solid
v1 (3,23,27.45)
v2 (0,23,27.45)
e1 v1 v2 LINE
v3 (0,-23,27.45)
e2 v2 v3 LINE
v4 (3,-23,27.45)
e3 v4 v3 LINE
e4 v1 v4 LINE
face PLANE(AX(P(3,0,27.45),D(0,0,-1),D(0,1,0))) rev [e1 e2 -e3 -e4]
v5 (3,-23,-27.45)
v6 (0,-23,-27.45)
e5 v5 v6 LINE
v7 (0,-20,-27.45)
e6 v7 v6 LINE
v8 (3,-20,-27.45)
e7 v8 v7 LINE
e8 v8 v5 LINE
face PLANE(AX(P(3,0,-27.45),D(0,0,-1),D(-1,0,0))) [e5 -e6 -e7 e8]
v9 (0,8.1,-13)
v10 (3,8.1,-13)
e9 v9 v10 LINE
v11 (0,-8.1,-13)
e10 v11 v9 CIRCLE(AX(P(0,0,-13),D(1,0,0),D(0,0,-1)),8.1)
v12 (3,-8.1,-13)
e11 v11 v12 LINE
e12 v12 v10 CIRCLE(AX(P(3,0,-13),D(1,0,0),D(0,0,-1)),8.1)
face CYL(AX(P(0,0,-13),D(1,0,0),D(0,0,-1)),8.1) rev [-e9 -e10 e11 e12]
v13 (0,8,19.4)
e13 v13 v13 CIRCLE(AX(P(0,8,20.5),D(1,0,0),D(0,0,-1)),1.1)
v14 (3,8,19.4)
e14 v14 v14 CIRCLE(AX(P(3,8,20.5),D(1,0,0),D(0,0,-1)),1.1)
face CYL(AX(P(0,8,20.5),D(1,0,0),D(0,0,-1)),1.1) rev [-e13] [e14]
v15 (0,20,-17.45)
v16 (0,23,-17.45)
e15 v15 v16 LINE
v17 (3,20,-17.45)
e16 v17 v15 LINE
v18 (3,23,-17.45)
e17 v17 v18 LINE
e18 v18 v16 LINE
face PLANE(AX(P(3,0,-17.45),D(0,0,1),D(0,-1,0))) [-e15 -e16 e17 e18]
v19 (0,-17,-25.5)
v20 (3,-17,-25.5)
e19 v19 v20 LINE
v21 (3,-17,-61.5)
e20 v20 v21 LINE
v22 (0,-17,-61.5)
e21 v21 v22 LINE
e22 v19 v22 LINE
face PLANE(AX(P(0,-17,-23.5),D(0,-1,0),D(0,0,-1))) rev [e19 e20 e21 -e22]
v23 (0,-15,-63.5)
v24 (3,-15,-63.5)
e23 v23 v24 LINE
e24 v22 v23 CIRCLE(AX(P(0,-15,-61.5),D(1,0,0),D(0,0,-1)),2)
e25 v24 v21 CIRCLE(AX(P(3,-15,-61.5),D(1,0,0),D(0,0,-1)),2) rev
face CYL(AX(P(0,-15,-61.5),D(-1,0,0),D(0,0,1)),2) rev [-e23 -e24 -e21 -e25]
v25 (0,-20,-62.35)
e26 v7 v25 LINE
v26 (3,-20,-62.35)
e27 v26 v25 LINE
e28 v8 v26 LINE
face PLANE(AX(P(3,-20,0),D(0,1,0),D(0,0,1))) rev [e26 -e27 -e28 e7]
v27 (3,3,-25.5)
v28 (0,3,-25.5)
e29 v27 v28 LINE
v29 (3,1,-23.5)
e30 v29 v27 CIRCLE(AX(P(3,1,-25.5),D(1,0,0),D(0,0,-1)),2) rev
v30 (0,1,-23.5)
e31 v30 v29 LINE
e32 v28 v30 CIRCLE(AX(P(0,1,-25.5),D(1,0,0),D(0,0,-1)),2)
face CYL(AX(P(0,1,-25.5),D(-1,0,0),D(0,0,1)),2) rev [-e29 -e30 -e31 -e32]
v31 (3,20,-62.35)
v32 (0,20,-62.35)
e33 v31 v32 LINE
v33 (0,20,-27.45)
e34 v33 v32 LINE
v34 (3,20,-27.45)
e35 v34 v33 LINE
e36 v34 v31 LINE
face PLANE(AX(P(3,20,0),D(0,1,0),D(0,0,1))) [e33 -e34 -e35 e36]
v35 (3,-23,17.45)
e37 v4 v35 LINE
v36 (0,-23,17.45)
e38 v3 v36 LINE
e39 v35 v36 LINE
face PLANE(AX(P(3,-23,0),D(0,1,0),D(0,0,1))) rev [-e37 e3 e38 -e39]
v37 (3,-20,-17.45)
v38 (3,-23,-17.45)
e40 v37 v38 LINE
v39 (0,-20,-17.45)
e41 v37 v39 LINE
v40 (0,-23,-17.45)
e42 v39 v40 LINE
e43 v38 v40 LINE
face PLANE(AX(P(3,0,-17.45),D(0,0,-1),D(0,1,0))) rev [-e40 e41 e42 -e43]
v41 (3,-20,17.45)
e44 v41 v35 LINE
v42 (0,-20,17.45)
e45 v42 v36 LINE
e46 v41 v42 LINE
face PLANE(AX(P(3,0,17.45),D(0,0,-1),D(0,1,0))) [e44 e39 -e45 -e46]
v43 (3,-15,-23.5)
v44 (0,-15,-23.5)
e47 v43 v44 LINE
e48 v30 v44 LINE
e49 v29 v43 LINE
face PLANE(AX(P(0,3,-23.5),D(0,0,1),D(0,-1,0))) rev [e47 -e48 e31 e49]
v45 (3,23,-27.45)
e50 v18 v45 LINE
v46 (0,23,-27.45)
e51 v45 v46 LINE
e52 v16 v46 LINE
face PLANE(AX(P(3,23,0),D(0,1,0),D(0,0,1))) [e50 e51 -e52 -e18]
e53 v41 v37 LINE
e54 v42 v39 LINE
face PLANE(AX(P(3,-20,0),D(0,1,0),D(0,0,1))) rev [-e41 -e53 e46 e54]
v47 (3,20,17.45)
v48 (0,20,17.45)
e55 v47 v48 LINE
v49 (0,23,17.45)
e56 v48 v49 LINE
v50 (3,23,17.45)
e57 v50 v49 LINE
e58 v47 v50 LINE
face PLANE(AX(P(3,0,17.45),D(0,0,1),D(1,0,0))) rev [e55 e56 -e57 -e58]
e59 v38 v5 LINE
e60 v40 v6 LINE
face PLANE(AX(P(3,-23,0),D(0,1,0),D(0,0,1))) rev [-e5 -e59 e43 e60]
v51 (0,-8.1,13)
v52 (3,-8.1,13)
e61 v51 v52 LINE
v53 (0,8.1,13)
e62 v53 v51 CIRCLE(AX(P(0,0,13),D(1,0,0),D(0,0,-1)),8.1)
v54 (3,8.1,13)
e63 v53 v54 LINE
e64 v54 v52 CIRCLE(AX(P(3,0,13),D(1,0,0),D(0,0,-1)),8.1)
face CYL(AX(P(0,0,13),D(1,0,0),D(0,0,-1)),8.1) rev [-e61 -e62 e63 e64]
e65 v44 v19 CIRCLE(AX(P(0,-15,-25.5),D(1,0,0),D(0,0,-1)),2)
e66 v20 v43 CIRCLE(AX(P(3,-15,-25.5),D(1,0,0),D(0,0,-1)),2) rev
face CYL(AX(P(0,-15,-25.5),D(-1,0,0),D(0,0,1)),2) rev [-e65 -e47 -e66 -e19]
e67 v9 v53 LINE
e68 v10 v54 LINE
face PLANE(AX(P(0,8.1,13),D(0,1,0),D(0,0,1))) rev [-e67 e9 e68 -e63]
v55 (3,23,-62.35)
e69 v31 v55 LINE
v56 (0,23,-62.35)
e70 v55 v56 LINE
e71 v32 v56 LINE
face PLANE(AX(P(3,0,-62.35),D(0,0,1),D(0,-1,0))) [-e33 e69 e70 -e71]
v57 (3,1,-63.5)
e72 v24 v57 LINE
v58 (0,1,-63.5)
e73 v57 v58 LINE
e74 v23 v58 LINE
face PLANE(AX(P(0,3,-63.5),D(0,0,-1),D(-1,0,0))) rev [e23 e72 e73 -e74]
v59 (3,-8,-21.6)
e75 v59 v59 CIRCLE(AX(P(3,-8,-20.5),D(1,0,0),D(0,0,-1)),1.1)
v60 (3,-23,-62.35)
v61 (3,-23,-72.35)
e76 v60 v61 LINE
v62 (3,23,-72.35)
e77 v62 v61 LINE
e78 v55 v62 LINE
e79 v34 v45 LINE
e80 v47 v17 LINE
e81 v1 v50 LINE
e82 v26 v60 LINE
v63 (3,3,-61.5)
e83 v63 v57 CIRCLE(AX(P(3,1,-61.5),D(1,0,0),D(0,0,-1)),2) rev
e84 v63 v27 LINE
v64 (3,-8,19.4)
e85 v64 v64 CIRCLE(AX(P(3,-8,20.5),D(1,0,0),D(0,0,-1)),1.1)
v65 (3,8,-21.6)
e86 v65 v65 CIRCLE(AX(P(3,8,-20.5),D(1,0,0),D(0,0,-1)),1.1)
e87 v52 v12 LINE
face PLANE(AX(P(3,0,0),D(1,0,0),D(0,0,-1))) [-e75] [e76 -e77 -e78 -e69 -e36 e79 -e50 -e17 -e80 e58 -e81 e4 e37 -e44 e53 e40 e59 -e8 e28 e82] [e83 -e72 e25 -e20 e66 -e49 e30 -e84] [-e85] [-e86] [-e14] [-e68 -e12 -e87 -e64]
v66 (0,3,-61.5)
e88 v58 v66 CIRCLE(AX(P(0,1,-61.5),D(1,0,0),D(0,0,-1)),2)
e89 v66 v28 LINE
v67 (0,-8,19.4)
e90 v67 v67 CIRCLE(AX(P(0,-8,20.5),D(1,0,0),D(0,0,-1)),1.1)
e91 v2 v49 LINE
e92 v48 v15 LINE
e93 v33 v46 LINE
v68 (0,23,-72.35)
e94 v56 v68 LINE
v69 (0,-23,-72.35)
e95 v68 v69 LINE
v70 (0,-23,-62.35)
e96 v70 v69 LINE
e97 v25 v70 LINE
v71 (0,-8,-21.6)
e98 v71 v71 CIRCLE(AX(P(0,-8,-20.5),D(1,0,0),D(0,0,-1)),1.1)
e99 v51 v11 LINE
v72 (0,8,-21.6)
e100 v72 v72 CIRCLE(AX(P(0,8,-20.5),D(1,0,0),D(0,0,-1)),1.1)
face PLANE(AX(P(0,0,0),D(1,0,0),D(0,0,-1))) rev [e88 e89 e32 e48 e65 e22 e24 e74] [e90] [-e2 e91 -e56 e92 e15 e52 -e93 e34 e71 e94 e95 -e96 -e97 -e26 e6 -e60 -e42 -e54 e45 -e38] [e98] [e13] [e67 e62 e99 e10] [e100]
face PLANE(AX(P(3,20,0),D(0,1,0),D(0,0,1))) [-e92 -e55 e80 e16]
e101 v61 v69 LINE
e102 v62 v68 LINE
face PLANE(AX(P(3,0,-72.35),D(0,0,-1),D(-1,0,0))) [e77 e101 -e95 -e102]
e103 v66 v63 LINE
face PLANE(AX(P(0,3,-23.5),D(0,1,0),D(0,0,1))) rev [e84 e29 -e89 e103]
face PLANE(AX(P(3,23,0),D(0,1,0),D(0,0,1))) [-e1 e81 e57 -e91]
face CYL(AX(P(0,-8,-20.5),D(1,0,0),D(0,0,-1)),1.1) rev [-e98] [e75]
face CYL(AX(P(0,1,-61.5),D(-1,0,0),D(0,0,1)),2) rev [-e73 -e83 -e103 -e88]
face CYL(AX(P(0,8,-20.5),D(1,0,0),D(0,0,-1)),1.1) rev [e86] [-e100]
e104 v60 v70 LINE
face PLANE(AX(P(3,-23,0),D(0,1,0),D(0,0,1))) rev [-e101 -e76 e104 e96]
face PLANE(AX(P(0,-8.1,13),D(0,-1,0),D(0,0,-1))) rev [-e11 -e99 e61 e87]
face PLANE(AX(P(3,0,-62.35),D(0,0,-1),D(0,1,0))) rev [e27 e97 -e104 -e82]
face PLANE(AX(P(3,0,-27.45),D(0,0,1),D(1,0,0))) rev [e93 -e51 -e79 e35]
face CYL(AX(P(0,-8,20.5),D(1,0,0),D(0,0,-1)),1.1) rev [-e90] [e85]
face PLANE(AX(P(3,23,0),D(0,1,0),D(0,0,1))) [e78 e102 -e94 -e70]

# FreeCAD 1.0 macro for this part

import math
import FreeCAD as App
import Part
import Sketcher
from FreeCAD import Vector
Q = App.Units.Quantity


def edges_at(feature, points):
    """Names of the edges that pass closest to the given points."""
    edges = feature.Shape.Edges
    near = lambda p: min(range(len(edges)), key=lambda i: edges[i].distToShape(Part.Vertex(*p))[0])
    return sorted({f"Edge{near(p) + 1}" for p in points})

doc = App.newDocument("Part")
body = doc.addObject("PartDesign::Body", "Body")

sketch1 = doc.addObject("Sketcher::SketchObject", "Sketch")
body.addObject(sketch1)
sketch1.AttachmentSupport = (doc.YZ_Plane, [""])
sketch1.MapMode = "FlatFace"
sketch1.addGeometry([
    Part.LineSegment(Vector(-20, 17.45, 0), Vector(-20, -17.45, 0)),
    Part.LineSegment(Vector(-20, -17.45, 0), Vector(-23, -17.45, 0)),
    Part.LineSegment(Vector(-23, -17.45, 0), Vector(-23, -27.45, 0)),
    Part.LineSegment(Vector(-23, -27.45, 0), Vector(-20, -27.45, 0)),
    Part.LineSegment(Vector(-20, -27.45, 0), Vector(-20, -62.35, 0)),
    Part.LineSegment(Vector(-20, -62.35, 0), Vector(-23, -62.35, 0)),
    Part.LineSegment(Vector(-23, -62.35, 0), Vector(-23, -72.35, 0)),
    Part.LineSegment(Vector(-23, -72.35, 0), Vector(23, -72.35, 0)),
    Part.LineSegment(Vector(23, -72.35, 0), Vector(23, -62.35, 0)),
    Part.LineSegment(Vector(23, -62.35, 0), Vector(20, -62.35, 0)),
    Part.LineSegment(Vector(20, -62.35, 0), Vector(20, -27.45, 0)),
    Part.LineSegment(Vector(20, -27.45, 0), Vector(23, -27.45, 0)),
    Part.LineSegment(Vector(23, -27.45, 0), Vector(23, -17.45, 0)),
    Part.LineSegment(Vector(23, -17.45, 0), Vector(20, -17.45, 0)),
    Part.LineSegment(Vector(20, -17.45, 0), Vector(20, 17.45, 0)),
    Part.LineSegment(Vector(20, 17.45, 0), Vector(23, 17.45, 0)),
    Part.LineSegment(Vector(23, 17.45, 0), Vector(23, 27.45, 0)),
    Part.LineSegment(Vector(23, 27.45, 0), Vector(-23, 27.45, 0)),
    Part.LineSegment(Vector(-23, 27.45, 0), Vector(-23, 17.45, 0)),
    Part.LineSegment(Vector(-23, 17.45, 0), Vector(-20, 17.45, 0)),
], False)
sketch1.addConstraint([
    Sketcher.Constraint("Coincident", 0, 2, 1, 1),
    Sketcher.Constraint("Coincident", 1, 2, 2, 1),
    Sketcher.Constraint("Coincident", 2, 2, 3, 1),
    Sketcher.Constraint("Coincident", 3, 2, 4, 1),
    Sketcher.Constraint("Coincident", 4, 2, 5, 1),
    Sketcher.Constraint("Coincident", 5, 2, 6, 1),
    Sketcher.Constraint("Coincident", 6, 2, 7, 1),
    Sketcher.Constraint("Coincident", 7, 2, 8, 1),
    Sketcher.Constraint("Coincident", 8, 2, 9, 1),
    Sketcher.Constraint("Coincident", 9, 2, 10, 1),
    Sketcher.Constraint("Coincident", 10, 2, 11, 1),
    Sketcher.Constraint("Coincident", 11, 2, 12, 1),
    Sketcher.Constraint("Coincident", 12, 2, 13, 1),
    Sketcher.Constraint("Coincident", 13, 2, 14, 1),
    Sketcher.Constraint("Coincident", 14, 2, 15, 1),
    Sketcher.Constraint("Coincident", 15, 2, 16, 1),
    Sketcher.Constraint("Coincident", 16, 2, 17, 1),
    Sketcher.Constraint("Coincident", 17, 2, 18, 1),
    Sketcher.Constraint("Coincident", 18, 2, 19, 1),
    Sketcher.Constraint("Coincident", 19, 2, 0, 1),
    Sketcher.Constraint("Vertical", 0),
    Sketcher.Constraint("Horizontal", 1),
    Sketcher.Constraint("Vertical", 2),
    Sketcher.Constraint("Horizontal", 3),
    Sketcher.Constraint("Vertical", 4),
    Sketcher.Constraint("Horizontal", 5),
    Sketcher.Constraint("Vertical", 6),
    Sketcher.Constraint("Horizontal", 7),
    Sketcher.Constraint("Vertical", 8),
    Sketcher.Constraint("Horizontal", 9),
    Sketcher.Constraint("Vertical", 10),
    Sketcher.Constraint("Horizontal", 11),
    Sketcher.Constraint("Vertical", 12),
    Sketcher.Constraint("Horizontal", 13),
    Sketcher.Constraint("Vertical", 14),
    Sketcher.Constraint("Horizontal", 15),
    Sketcher.Constraint("Vertical", 16),
    Sketcher.Constraint("Horizontal", 17),
    Sketcher.Constraint("Vertical", 18),
    Sketcher.Constraint("Horizontal", 19),
    Sketcher.Constraint("Symmetric", 0, 2, 14, 2, -1, 1),
    Sketcher.Constraint("Symmetric", 2, 2, 16, 2, -1, 1),
    Sketcher.Constraint("Symmetric", 11, 2, 17, 2, -1, 1),
    Sketcher.Constraint("Symmetric", 5, 2, 8, 2, -2),
    Sketcher.Constraint("Symmetric", 1, 2, 12, 2, -2),
    Sketcher.Constraint("Horizontal", 15, 2, 18, 2),
    Sketcher.Constraint("Vertical", 0, 2, 3, 2),
    Sketcher.Constraint("Vertical", 2, 2, 5, 2),
    Sketcher.Constraint("Vertical", 10, 2, 13, 2),
    Sketcher.Constraint("Equal", 0, 4),
    Sketcher.Constraint("Equal", 2, 6),
    Sketcher.Constraint("DistanceX", 1, 2, 1, 1, Q("3 mm")),
    Sketcher.Constraint("DistanceX", 7, 1, 7, 2, Q("46 mm")),
    Sketcher.Constraint("DistanceY", 2, 2, 2, 1, Q("10 mm")),
    Sketcher.Constraint("DistanceY", 0, 2, 0, 1, Q("34.9 mm")),
])
pad1 = doc.addObject("PartDesign::Pad", "Pad")
body.addObject(pad1)
pad1.Profile = sketch1
pad1.Length = 3

sketch2 = doc.addObject("Sketcher::SketchObject", "Sketch001")
body.addObject(sketch2)
sketch2.AttachmentSupport = (doc.YZ_Plane, [""])
sketch2.MapMode = "FlatFace"
sketch2.AttachmentOffset = App.Placement(Vector(0, 0, 3), App.Rotation())
sketch2.addGeometry([
    Part.Circle(Vector(8, 20.5, 0), Vector(0, 0, 1), 1.1),
    Part.Circle(Vector(-8, 20.5, 0), Vector(0, 0, 1), 1.1),
    Part.Circle(Vector(8, -20.5, 0), Vector(0, 0, 1), 1.1),
    Part.Circle(Vector(-8, -20.5, 0), Vector(0, 0, 1), 1.1),
    Part.LineSegment(Vector(8.1, -13, 0), Vector(8.1, 13, 0)),
    Part.ArcOfCircle(Part.Circle(Vector(0, 13, 0), Vector(0, 0, 1), 8.1), math.radians(0), math.radians(180)),
    Part.LineSegment(Vector(-8.1, 13, 0), Vector(-8.1, -13, 0)),
    Part.ArcOfCircle(Part.Circle(Vector(0, -13, 0), Vector(0, 0, 1), 8.1), math.radians(180), math.radians(360)),
], False)
sketch2.addConstraint([
    Sketcher.Constraint("Tangent", 4, 2, 5, 1),
    Sketcher.Constraint("Tangent", 5, 2, 6, 1),
    Sketcher.Constraint("Tangent", 6, 2, 7, 1),
    Sketcher.Constraint("Tangent", 7, 2, 4, 1),
    Sketcher.Constraint("Vertical", 4),
    Sketcher.Constraint("Vertical", 6),
    Sketcher.Constraint("Equal", 0, 1),
    Sketcher.Constraint("Equal", 1, 2),
    Sketcher.Constraint("Equal", 2, 3),
    Sketcher.Constraint("Symmetric", 1, 3, 2, 3, -1, 1),
    Sketcher.Constraint("Symmetric", 0, 3, 3, 3, -1, 1),
    Sketcher.Constraint("Symmetric", 5, 3, 7, 3, -1, 1),
    Sketcher.Constraint("Symmetric", 0, 3, 1, 3, -2),
    Sketcher.Constraint("Diameter", 0, Q("2.2 mm")),
    Sketcher.Constraint("Radius", 5, Q("8.1 mm")),
    Sketcher.Constraint("DistanceY", 4, 1, 4, 2, Q("26 mm")),
    Sketcher.Constraint("DistanceX", -1, 1, 0, 3, Q("8 mm")),
    Sketcher.Constraint("DistanceY", 2, 3, 0, 3, Q("41 mm")),
])
pocket1 = doc.addObject("PartDesign::Pocket", "Pocket")
body.addObject(pocket1)
pocket1.Profile = sketch2
pocket1.Type = "ThroughAll"

sketch3 = doc.addObject("Sketcher::SketchObject", "Sketch002")
body.addObject(sketch3)
sketch3.AttachmentSupport = (doc.YZ_Plane, [""])
sketch3.MapMode = "FlatFace"
sketch3.AttachmentOffset = App.Placement(Vector(0, 0, 3), App.Rotation())
sketch3.addGeometry([
    Part.LineSegment(Vector(3, -23.5, 0), Vector(-17, -23.5, 0)),
    Part.LineSegment(Vector(-17, -23.5, 0), Vector(-17, -63.5, 0)),
    Part.LineSegment(Vector(-17, -63.5, 0), Vector(3, -63.5, 0)),
    Part.LineSegment(Vector(3, -63.5, 0), Vector(3, -23.5, 0)),
], False)
sketch3.addConstraint([
    Sketcher.Constraint("Coincident", 0, 2, 1, 1),
    Sketcher.Constraint("Coincident", 1, 2, 2, 1),
    Sketcher.Constraint("Coincident", 2, 2, 3, 1),
    Sketcher.Constraint("Coincident", 3, 2, 0, 1),
    Sketcher.Constraint("Horizontal", 0),
    Sketcher.Constraint("Vertical", 1),
    Sketcher.Constraint("Horizontal", 2),
    Sketcher.Constraint("Vertical", 3),
    Sketcher.Constraint("DistanceX", 0, 2, 0, 1, Q("20 mm")),
    Sketcher.Constraint("DistanceY", 1, 2, 1, 1, Q("40 mm")),
    Sketcher.Constraint("DistanceX", 0, 2, -1, 1, Q("17 mm")),
    Sketcher.Constraint("DistanceY", 0, 2, -1, 1, Q("23.5 mm")),
])
pocket2 = doc.addObject("PartDesign::Pocket", "Pocket001")
body.addObject(pocket2)
pocket2.Profile = sketch3
pocket2.Type = "ThroughAll"
doc.recompute()

fillet = doc.addObject("PartDesign::Fillet", "Fillet")
body.addObject(fillet)
fillet.Base = (pocket2, edges_at(pocket2, [
    (1.5, -17, -23.5),
    (1.5, 3, -23.5),
    (1.5, 3, -63.5),
    (1.5, -17, -63.5),
]))
fillet.Radius = 2

doc.recompute()
